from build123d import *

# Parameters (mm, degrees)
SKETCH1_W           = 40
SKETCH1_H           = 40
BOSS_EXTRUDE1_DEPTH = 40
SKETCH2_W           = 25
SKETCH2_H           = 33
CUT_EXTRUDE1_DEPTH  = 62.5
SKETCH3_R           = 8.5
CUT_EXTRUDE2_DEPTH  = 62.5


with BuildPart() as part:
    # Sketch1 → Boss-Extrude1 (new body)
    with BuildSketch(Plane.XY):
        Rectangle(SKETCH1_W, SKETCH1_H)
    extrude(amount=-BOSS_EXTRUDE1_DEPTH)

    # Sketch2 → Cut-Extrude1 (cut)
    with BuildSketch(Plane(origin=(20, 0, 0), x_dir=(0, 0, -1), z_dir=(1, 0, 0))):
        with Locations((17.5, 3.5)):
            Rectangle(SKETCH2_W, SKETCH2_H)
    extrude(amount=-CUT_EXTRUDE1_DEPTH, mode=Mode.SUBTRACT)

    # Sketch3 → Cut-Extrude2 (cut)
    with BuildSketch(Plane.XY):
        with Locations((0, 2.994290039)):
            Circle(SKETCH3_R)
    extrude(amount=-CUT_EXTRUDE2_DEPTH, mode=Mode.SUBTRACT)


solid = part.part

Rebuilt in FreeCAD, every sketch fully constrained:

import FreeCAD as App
import Part
import Sketcher

V = App.Vector

doc = App.newDocument("Part")
body = doc.addObject("PartDesign::Body", "Body")

sketch1 = body.newObject("Sketcher::SketchObject", "Sketch")
sketch1.AttachmentSupport = (doc.getObject("XY_Plane"), [""])
sketch1.MapMode = "FlatFace"
sketch1.addGeometry(Part.LineSegment(V(-20, 20, 0), V(-20, -20, 0)), False)
sketch1.addGeometry(Part.LineSegment(V(-20, -20, 0), V(20, -20, 0)), False)
sketch1.addGeometry(Part.LineSegment(V(20, -20, 0), V(20, 20, 0)), False)
sketch1.addGeometry(Part.LineSegment(V(20, 20, 0), V(-20, 20, 0)), False)
sketch1.addConstraint(Sketcher.Constraint("Coincident", 0, 2, 1, 1))
sketch1.addConstraint(Sketcher.Constraint("Coincident", 1, 2, 2, 1))
sketch1.addConstraint(Sketcher.Constraint("Coincident", 2, 2, 3, 1))
sketch1.addConstraint(Sketcher.Constraint("Coincident", 3, 2, 0, 1))
sketch1.addConstraint(Sketcher.Constraint("Vertical", 0))
sketch1.addConstraint(Sketcher.Constraint("Horizontal", 1))
sketch1.addConstraint(Sketcher.Constraint("Vertical", 2))
sketch1.addConstraint(Sketcher.Constraint("Horizontal", 3))
sketch1.addConstraint(Sketcher.Constraint("Symmetric", 0, 2, 2, 2, -1, 1))
sketch1.addConstraint(Sketcher.Constraint("Equal", 3, 0))
sketch1.addConstraint(Sketcher.Constraint("DistanceX", 1, 1, 1, 2, 40.0))
pad1 = body.newObject("PartDesign::Pad", "Pad")
pad1.Profile = sketch1
pad1.Length = 40
pad1.Reversed = True

sketch2 = body.newObject("Sketcher::SketchObject", "Sketch001")
sketch2.AttachmentSupport = (doc.getObject("YZ_Plane"), [""])
sketch2.MapMode = "FlatFace"
sketch2.AttachmentOffset = App.Placement(V(0, 0, 20), App.Rotation())
sketch2.addGeometry(Part.LineSegment(V(20, -5, 0), V(-13, -5, 0)), False)
sketch2.addGeometry(Part.LineSegment(V(-13, -5, 0), V(-13, -30, 0)), False)
sketch2.addGeometry(Part.LineSegment(V(-13, -30, 0), V(20, -30, 0)), False)
sketch2.addGeometry(Part.LineSegment(V(20, -30, 0), V(20, -5, 0)), False)
sketch2.addConstraint(Sketcher.Constraint("Coincident", 0, 2, 1, 1))
sketch2.addConstraint(Sketcher.Constraint("Coincident", 1, 2, 2, 1))
sketch2.addConstraint(Sketcher.Constraint("Coincident", 2, 2, 3, 1))
sketch2.addConstraint(Sketcher.Constraint("Coincident", 3, 2, 0, 1))
sketch2.addConstraint(Sketcher.Constraint("Horizontal", 0))
sketch2.addConstraint(Sketcher.Constraint("Vertical", 1))
sketch2.addConstraint(Sketcher.Constraint("Horizontal", 2))
sketch2.addConstraint(Sketcher.Constraint("Vertical", 3))
sketch2.addConstraint(Sketcher.Constraint("DistanceX", 0, 2, 0, 1, 33.0))
sketch2.addConstraint(Sketcher.Constraint("DistanceY", 1, 2, 1, 1, 25.0))
sketch2.addConstraint(Sketcher.Constraint("DistanceX", 0, 2, -1, 1, 13.0))
sketch2.addConstraint(Sketcher.Constraint("DistanceY", 0, 2, -1, 1, 5.0))
pocket1 = body.newObject("PartDesign::Pocket", "Pocket")
pocket1.Profile = sketch2
pocket1.Length = 62.5

sketch3 = body.newObject("Sketcher::SketchObject", "Sketch002")
sketch3.AttachmentSupport = (doc.getObject("XY_Plane"), [""])
sketch3.MapMode = "FlatFace"
sketch3.addGeometry(Part.Circle(V(0, 3, 0), V(0, 0, 1), 8), False)
sketch3.addConstraint(Sketcher.Constraint("PointOnObject", 0, 3, -2))
sketch3.addConstraint(Sketcher.Constraint("Diameter", 0, 17.0))
sketch3.addConstraint(Sketcher.Constraint("DistanceY", -1, 1, 0, 3, 2.99429))
pocket2 = body.newObject("PartDesign::Pocket", "Pocket001")
pocket2.Profile = sketch3
pocket2.Length = 62.5

doc.recompute()
